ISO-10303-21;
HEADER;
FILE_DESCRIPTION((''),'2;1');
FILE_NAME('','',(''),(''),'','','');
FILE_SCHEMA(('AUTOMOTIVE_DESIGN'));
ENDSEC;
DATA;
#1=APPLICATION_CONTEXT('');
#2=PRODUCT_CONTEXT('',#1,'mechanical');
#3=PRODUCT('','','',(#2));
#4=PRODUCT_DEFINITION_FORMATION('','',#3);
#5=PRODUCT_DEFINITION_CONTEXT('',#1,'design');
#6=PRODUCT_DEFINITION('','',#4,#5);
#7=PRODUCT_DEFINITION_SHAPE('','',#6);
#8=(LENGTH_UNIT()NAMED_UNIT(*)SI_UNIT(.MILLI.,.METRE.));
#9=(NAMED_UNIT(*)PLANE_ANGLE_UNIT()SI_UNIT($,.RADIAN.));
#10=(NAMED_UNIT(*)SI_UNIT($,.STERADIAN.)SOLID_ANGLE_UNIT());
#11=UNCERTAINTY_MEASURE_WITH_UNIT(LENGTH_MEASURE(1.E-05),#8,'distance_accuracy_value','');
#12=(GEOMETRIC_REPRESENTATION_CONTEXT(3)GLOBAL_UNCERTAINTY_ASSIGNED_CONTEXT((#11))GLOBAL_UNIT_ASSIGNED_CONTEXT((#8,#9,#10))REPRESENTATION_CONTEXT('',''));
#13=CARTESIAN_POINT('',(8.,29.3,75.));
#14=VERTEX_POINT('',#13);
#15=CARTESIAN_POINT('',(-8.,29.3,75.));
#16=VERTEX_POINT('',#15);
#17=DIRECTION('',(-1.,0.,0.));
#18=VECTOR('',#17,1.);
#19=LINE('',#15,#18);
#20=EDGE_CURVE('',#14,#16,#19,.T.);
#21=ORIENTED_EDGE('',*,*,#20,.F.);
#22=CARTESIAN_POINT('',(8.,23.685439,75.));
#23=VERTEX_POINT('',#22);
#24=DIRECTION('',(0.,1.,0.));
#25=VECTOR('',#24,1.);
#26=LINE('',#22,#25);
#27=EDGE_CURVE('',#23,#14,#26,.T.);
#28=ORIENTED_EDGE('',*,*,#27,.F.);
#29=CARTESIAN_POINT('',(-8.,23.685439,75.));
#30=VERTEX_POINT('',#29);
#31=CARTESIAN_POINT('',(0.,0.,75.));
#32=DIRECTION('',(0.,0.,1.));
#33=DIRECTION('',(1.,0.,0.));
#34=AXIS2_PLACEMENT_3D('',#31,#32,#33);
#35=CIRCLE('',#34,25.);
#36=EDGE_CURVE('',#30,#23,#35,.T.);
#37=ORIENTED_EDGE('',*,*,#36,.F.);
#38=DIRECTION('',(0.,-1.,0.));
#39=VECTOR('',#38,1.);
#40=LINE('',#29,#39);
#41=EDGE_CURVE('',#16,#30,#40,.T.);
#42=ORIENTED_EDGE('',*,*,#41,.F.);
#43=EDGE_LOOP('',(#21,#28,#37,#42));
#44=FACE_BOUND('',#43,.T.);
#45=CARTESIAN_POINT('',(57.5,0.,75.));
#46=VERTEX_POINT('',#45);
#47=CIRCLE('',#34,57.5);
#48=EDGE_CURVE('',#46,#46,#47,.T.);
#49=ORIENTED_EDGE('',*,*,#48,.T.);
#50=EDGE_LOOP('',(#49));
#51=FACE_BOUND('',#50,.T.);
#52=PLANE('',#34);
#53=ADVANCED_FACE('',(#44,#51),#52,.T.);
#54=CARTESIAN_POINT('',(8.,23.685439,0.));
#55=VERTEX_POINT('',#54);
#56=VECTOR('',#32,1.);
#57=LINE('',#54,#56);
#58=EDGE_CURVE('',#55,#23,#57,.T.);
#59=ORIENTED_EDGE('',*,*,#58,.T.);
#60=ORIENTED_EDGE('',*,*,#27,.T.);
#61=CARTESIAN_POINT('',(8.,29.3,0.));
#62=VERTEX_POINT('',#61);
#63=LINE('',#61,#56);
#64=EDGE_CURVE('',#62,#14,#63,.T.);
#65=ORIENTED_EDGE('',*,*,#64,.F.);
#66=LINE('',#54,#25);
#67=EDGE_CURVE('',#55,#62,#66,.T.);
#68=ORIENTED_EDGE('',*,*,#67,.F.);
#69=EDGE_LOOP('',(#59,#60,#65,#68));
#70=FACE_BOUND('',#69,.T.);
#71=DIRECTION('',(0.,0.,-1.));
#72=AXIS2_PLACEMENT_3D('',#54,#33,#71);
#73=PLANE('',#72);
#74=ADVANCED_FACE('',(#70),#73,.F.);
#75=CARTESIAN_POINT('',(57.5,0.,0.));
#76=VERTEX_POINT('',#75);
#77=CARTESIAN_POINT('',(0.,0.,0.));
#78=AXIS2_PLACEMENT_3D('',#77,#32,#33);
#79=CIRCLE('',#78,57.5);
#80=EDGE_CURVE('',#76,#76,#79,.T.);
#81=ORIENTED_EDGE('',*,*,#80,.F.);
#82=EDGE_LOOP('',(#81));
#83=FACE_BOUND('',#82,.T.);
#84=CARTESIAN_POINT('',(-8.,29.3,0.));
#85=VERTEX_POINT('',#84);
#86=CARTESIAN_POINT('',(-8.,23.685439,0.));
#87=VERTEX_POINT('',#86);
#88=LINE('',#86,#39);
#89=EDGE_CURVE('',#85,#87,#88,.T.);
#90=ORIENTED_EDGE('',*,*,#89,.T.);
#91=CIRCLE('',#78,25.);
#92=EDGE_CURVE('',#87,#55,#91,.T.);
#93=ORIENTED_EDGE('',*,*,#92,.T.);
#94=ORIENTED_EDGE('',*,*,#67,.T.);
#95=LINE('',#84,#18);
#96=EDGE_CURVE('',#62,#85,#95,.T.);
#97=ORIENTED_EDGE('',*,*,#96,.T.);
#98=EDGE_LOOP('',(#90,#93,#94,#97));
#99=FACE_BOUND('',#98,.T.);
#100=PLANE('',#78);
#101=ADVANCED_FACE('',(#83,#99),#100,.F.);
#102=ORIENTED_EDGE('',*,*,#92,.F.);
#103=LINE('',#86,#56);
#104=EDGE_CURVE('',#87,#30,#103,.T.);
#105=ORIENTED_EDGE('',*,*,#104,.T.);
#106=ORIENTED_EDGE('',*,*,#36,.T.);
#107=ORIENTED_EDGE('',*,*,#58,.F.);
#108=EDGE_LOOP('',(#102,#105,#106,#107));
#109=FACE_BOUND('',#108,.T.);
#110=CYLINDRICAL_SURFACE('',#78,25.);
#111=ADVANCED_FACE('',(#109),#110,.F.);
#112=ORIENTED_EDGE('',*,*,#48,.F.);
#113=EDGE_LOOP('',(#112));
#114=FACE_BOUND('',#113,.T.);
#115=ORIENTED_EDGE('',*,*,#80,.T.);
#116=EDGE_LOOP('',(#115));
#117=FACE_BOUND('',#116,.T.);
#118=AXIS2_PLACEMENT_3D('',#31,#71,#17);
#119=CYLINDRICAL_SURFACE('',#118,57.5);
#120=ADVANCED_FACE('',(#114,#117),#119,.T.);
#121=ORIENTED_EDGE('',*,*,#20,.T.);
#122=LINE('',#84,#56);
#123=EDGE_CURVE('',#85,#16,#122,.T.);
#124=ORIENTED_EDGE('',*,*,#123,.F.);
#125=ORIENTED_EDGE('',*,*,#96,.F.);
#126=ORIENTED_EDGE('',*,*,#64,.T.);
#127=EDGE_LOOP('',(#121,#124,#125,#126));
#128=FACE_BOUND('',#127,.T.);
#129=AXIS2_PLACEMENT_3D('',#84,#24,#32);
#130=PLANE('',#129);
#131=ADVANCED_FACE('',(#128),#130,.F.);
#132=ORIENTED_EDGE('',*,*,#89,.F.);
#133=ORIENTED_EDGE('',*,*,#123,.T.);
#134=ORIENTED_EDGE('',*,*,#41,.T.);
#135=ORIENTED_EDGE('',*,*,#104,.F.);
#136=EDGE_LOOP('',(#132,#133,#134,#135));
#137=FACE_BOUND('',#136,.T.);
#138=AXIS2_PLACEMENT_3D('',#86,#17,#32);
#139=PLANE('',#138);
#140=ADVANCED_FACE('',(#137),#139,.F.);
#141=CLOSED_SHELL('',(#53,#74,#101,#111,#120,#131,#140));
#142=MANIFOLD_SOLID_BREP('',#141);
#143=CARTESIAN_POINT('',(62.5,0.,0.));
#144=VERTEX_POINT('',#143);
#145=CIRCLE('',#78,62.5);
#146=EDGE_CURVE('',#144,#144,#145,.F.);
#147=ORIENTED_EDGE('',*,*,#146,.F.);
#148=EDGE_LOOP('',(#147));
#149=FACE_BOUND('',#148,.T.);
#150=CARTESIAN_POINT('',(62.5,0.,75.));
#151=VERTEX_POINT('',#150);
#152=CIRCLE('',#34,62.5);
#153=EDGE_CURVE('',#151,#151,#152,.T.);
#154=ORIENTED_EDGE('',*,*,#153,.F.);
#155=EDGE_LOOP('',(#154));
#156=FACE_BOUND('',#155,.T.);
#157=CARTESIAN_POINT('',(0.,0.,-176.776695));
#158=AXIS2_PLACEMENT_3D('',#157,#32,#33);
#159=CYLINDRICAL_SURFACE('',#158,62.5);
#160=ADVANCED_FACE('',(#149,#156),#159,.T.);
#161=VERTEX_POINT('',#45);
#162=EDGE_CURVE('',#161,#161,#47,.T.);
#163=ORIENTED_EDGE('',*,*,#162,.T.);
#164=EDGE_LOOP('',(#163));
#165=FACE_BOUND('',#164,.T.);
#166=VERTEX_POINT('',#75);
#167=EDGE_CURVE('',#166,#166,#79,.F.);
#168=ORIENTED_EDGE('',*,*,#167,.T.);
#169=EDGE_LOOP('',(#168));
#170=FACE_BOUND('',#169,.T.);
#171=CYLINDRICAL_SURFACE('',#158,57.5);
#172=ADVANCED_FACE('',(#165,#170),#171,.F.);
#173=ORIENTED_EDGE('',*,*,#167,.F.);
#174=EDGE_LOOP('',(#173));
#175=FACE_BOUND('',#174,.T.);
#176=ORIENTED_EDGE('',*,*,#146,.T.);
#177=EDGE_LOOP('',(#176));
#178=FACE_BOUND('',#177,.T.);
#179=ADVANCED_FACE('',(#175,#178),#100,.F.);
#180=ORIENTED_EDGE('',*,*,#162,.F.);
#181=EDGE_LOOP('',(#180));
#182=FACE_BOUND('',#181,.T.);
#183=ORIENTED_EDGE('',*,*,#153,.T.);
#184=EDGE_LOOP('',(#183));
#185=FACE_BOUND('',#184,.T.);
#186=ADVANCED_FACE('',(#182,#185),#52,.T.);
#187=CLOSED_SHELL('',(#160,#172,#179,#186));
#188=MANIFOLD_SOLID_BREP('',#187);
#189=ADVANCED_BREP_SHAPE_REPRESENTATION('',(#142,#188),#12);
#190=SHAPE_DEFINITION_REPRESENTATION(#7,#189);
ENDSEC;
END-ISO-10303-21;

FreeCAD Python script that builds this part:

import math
import FreeCAD as App
import Part
import Sketcher
from FreeCAD import Vector

doc = App.newDocument("Part")
body = doc.addObject("PartDesign::Body", "Body")

sketch1 = body.newObject("Sketcher::SketchObject", "Sketch")
sketch1.AttachmentSupport = (doc.getObject("XY_Plane"), [""])
sketch1.MapMode = "FlatFace"
sketch1.addGeometry(Part.Circle(Vector(0, 0, 0), Vector(0, 0, 1), 58), False)
sketch1.addConstraint([
    Sketcher.Constraint("Coincident", 0, 3, -1, 1),
    Sketcher.Constraint("Diameter", 0, 115.0),
])
pad1 = body.newObject("PartDesign::Pad", "Pad")
pad1.Profile = sketch1
pad1.Length = 75

sketch2 = body.newObject("Sketcher::SketchObject", "Sketch001")
sketch2.AttachmentSupport = (doc.getObject("XY_Plane"), [""])
sketch2.MapMode = "FlatFace"
sketch2.AttachmentOffset = App.Placement(Vector(0, 0, 75), App.Rotation())
sketch2.addGeometry(Part.Circle(Vector(0, 0, 0), Vector(0, 0, 1), 25), False)
sketch2.addConstraint([
    Sketcher.Constraint("Coincident", 0, 3, -1, 1),
    Sketcher.Constraint("Diameter", 0, 50.0),
])
pocket1 = body.newObject("PartDesign::Pocket", "Pocket")
pocket1.Profile = sketch2
pocket1.Type = "ThroughAll"

sketch3 = body.newObject("Sketcher::SketchObject", "Sketch002")
sketch3.AttachmentSupport = (doc.getObject("XY_Plane"), [""])
sketch3.MapMode = "FlatFace"
sketch3.AttachmentOffset = App.Placement(Vector(0, 0, 75), App.Rotation())
sketch3.addGeometry([
    Part.LineSegment(Vector(-8, 29, 0), Vector(-8, 24, 0)),
    Part.ArcOfCircle(Part.Circle(Vector(0, 0, 0), Vector(0, 0, 1), 25), math.radians(71), math.radians(109)),
    Part.LineSegment(Vector(8, 24, 0), Vector(8, 29, 0)),
    Part.LineSegment(Vector(8, 29, 0), Vector(-8, 29, 0)),
], False)
sketch3.addConstraint([
    Sketcher.Constraint("Coincident", 0, 2, 1, 2),
    Sketcher.Constraint("Coincident", 1, 1, 2, 1),
    Sketcher.Constraint("Coincident", 2, 2, 3, 1),
    Sketcher.Constraint("Coincident", 3, 2, 0, 1),
    Sketcher.Constraint("Vertical", 0),
    Sketcher.Constraint("Vertical", 2),
    Sketcher.Constraint("Horizontal", 3),
    Sketcher.Constraint("Coincident", 1, 3, -1, 1),
    Sketcher.Constraint("Horizontal", 0, 2, 1, 1),
    Sketcher.Constraint("Radius", 1, 25.0),
    Sketcher.Constraint("DistanceX", 3, 2, 3, 1, 16.0),
    Sketcher.Constraint("DistanceY", -1, 1, 2, 2, 29.3),
])
pocket2 = body.newObject("PartDesign::Pocket", "Pocket001")
pocket2.Profile = sketch3
pocket2.Type = "ThroughAll"
body2 = doc.addObject("PartDesign::Body", "Body001")

sketch4 = body2.newObject("Sketcher::SketchObject", "Sketch003")
sketch4.AttachmentSupport = (doc.getObject("XY_Plane001"), [""])
sketch4.MapMode = "FlatFace"
sketch4.AttachmentOffset = App.Placement(Vector(0, 0, 75), App.Rotation())
sketch4.addGeometry([
    Part.Circle(Vector(0, 0, 0), Vector(0, 0, 1), 62),
    Part.Circle(Vector(0, 0, 0), Vector(0, 0, 1), 58),
], False)
sketch4.addConstraint([
    Sketcher.Constraint("Coincident", 0, 3, -1, 1),
    Sketcher.Constraint("Coincident", 1, 3, -1, 1),
    Sketcher.Constraint("Diameter", 0, 125.0),
    Sketcher.Constraint("Diameter", 1, 115.0),
])
pad2 = body2.newObject("PartDesign::Pad", "Pad001")
pad2.Profile = sketch4
pad2.Length = 75
pad2.Reversed = True

doc.recompute()
